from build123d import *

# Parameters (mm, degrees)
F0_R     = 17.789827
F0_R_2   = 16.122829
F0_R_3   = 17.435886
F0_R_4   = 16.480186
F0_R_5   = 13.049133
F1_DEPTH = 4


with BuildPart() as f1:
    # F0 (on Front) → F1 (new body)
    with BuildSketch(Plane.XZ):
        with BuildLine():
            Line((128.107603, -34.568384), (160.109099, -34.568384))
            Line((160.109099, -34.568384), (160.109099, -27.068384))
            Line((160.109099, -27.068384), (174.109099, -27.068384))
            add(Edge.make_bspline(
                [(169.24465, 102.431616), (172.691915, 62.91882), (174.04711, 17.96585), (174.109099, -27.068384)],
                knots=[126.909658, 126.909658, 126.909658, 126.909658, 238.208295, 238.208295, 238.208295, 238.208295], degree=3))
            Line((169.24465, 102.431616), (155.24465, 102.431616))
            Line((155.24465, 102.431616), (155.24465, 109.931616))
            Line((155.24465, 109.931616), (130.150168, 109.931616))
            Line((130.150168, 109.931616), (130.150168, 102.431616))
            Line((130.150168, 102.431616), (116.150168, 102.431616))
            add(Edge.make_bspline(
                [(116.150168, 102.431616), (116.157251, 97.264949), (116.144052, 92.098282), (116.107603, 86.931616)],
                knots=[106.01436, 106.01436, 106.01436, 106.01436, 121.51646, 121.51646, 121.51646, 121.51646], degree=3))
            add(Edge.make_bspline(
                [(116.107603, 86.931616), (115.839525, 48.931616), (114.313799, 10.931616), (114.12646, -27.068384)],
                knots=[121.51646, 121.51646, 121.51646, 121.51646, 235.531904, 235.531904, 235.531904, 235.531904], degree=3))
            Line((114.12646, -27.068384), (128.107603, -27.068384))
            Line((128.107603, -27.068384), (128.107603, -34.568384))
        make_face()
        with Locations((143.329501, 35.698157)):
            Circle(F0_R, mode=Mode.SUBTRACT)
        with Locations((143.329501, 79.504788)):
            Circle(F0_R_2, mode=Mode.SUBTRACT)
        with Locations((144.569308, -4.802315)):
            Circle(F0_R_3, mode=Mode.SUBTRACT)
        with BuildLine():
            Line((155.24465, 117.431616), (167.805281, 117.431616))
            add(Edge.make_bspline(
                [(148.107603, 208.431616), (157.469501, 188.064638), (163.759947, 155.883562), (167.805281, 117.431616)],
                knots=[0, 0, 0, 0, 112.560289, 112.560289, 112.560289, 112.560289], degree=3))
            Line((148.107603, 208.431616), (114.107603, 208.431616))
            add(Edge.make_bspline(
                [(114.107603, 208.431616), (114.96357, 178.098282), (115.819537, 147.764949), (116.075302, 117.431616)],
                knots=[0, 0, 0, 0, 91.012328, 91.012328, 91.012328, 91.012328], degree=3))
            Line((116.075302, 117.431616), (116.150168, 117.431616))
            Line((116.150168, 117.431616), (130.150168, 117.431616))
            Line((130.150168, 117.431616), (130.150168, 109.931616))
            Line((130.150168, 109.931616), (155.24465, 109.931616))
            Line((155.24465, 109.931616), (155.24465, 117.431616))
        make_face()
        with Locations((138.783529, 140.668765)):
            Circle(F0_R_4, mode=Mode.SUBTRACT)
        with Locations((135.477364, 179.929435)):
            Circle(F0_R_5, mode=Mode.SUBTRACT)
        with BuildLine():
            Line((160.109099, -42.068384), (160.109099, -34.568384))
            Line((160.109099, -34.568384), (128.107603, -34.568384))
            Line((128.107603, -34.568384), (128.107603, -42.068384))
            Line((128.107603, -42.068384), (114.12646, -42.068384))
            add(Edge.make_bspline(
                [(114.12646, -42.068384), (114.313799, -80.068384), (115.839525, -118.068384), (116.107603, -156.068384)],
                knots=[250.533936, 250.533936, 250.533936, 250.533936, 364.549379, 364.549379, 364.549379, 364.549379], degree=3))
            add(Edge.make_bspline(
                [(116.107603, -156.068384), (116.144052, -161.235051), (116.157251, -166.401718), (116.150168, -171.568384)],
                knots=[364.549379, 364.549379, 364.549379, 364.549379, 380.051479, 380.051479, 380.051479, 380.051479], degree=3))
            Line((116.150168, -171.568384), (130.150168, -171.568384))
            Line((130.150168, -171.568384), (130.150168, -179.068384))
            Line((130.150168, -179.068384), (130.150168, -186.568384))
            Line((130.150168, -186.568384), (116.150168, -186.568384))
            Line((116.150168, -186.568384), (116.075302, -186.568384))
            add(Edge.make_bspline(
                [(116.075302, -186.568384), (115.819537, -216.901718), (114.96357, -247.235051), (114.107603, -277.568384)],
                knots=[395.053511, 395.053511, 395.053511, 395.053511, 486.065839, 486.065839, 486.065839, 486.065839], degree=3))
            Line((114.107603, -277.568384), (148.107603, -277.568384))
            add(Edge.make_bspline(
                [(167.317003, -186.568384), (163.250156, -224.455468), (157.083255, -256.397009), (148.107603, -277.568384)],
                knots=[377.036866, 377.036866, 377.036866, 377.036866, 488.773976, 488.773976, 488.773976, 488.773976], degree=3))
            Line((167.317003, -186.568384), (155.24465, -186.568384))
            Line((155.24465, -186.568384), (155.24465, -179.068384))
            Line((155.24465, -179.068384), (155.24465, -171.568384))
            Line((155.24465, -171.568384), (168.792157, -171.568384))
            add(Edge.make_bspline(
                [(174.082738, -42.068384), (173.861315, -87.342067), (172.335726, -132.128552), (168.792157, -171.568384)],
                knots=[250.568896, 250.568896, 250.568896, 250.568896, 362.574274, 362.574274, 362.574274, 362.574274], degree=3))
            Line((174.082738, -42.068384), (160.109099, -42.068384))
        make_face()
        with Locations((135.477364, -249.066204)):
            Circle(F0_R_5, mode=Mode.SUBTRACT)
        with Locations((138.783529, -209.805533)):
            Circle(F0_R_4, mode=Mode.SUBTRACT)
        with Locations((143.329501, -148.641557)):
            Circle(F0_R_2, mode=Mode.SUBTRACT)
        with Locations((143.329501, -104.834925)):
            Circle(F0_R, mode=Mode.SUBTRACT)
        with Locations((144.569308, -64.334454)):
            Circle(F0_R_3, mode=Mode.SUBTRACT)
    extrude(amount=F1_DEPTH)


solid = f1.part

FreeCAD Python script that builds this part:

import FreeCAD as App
import Part
import Sketcher

V = App.Vector
Q = App.Units.Quantity

doc = App.newDocument("Part")
params = doc.addObject("Spreadsheet::Sheet", "Params")
for row, (alias, value) in enumerate([
    ("sketch1_width", "14 mm"),
    ("pad1_length", "4 mm"),
], start=1):
    params.set(f"A{row}", alias)
    params.set(f"B{row}", "=" + value)
    params.setAlias(f"B{row}", alias)

body = doc.addObject("PartDesign::Body", "Body")

# Sketch on XZ plane
sketch1 = doc.addObject("Sketcher::SketchObject", "Sketch")
body.addObject(sketch1)
sketch1.AttachmentSupport = (doc.XZ_Plane, [""])
sketch1.MapMode = "FlatFace"
sketch1.addGeometry(Part.LineSegment(V(128.107603, -27.068384, 0), V(128.107603, -42.068384, 0)), False)
sketch1.addGeometry(Part.LineSegment(V(128.107603, -42.068384, 0), V(114.12646, -42.068384, 0)), False)
sketch1.addGeometry(Part.BSplineCurve([V(114.12646, -42.068384, 0), V(114.313799, -80.068384, 0), V(115.839525, -118.068384, 0), V(116.107603, -156.068384, 0)], [4, 4], [250.533936, 364.549379], False, 3, [1, 1, 1, 1], False), False)
sketch1.addGeometry(Part.BSplineCurve([V(116.107603, -156.068384, 0), V(116.144052, -161.235051, 0), V(116.157251, -166.401718, 0), V(116.150168, -171.568384, 0)], [4, 4], [364.549379, 380.051479], False, 3, [1, 1, 1, 1], False), False)
sketch1.addGeometry(Part.LineSegment(V(116.150168, -171.568384, 0), V(130.150168, -171.568384, 0)), False)
sketch1.addGeometry(Part.LineSegment(V(130.150168, -171.568384, 0), V(130.150168, -186.568384, 0)), False)
sketch1.addGeometry(Part.LineSegment(V(130.150168, -186.568384, 0), V(116.075302, -186.568384, 0)), False)
sketch1.addGeometry(Part.BSplineCurve([V(116.075302, -186.568384, 0), V(115.819537, -216.901718, 0), V(114.96357, -247.235051, 0), V(114.107603, -277.568384, 0)], [4, 4], [395.053511, 486.065839], False, 3, [1, 1, 1, 1], False), False)
sketch1.addGeometry(Part.LineSegment(V(114.107603, -277.568384, 0), V(148.107603, -277.568384, 0)), False)
sketch1.addGeometry(Part.BSplineCurve([V(167.317003, -186.568384, 0), V(163.250156, -224.455468, 0), V(157.083255, -256.397009, 0), V(148.107603, -277.568384, 0)], [4, 4], [377.036866, 488.773976], False, 3, [1, 1, 1, 1], False), False)
sketch1.addGeometry(Part.LineSegment(V(167.317003, -186.568384, 0), V(155.24465, -186.568384, 0)), False)
sketch1.addGeometry(Part.LineSegment(V(155.24465, -186.568384, 0), V(155.24465, -171.568384, 0)), False)
sketch1.addGeometry(Part.LineSegment(V(155.24465, -171.568384, 0), V(168.792157, -171.568384, 0)), False)
sketch1.addGeometry(Part.BSplineCurve([V(174.082738, -42.068384, 0), V(173.861315, -87.342067, 0), V(172.335726, -132.128552, 0), V(168.792157, -171.568384, 0)], [4, 4], [250.568896, 362.574274], False, 3, [1, 1, 1, 1], False), False)
sketch1.addGeometry(Part.LineSegment(V(174.082738, -42.068384, 0), V(160.109099, -42.068384, 0)), False)
sketch1.addGeometry(Part.LineSegment(V(160.109099, -42.068384, 0), V(160.109099, -27.068384, 0)), False)
sketch1.addGeometry(Part.LineSegment(V(160.109099, -27.068384, 0), V(174.109099, -27.068384, 0)), False)
sketch1.addGeometry(Part.BSplineCurve([V(169.24465, 102.431616, 0), V(172.691915, 62.91882, 0), V(174.04711, 17.96585, 0), V(174.109099, -27.068384, 0)], [4, 4], [126.909658, 238.208295], False, 3, [1, 1, 1, 1], False), False)
sketch1.addGeometry(Part.LineSegment(V(169.24465, 102.431616, 0), V(155.24465, 102.431616, 0)), False)
sketch1.addGeometry(Part.LineSegment(V(155.24465, 102.431616, 0), V(155.24465, 117.431616, 0)), False)
sketch1.addGeometry(Part.LineSegment(V(155.24465, 117.431616, 0), V(167.805281, 117.431616, 0)), False)
sketch1.addGeometry(Part.BSplineCurve([V(148.107603, 208.431616, 0), V(157.469501, 188.064638, 0), V(163.759947, 155.883562, 0), V(167.805281, 117.431616, 0)], [4, 4], [0, 112.560289], False, 3, [1, 1, 1, 1], False), False)
sketch1.addGeometry(Part.LineSegment(V(148.107603, 208.431616, 0), V(114.107603, 208.431616, 0)), False)
sketch1.addGeometry(Part.BSplineCurve([V(114.107603, 208.431616, 0), V(114.96357, 178.098282, 0), V(115.819537, 147.764949, 0), V(116.075302, 117.431616, 0)], [4, 4], [0, 91.012328], False, 3, [1, 1, 1, 1], False), False)
sketch1.addGeometry(Part.LineSegment(V(116.075302, 117.431616, 0), V(130.150168, 117.431616, 0)), False)
sketch1.addGeometry(Part.LineSegment(V(130.150168, 117.431616, 0), V(130.150168, 102.431616, 0)), False)
sketch1.addGeometry(Part.LineSegment(V(130.150168, 102.431616, 0), V(116.150168, 102.431616, 0)), False)
sketch1.addGeometry(Part.BSplineCurve([V(116.150168, 102.431616, 0), V(116.157251, 97.264949, 0), V(116.144052, 92.098282, 0), V(116.107603, 86.931616, 0)], [4, 4], [106.01436, 121.51646], False, 3, [1, 1, 1, 1], False), False)
sketch1.addGeometry(Part.BSplineCurve([V(116.107603, 86.931616, 0), V(115.839525, 48.931616, 0), V(114.313799, 10.931616, 0), V(114.12646, -27.068384, 0)], [4, 4], [121.51646, 235.531904], False, 3, [1, 1, 1, 1], False), False)
sketch1.addGeometry(Part.LineSegment(V(114.12646, -27.068384, 0), V(128.107603, -27.068384, 0)), False)
sketch1.addGeometry(Part.Circle(V(135.477364, -249.066204, 0), V(0, 0, 1), 13.049133), False)
sketch1.addGeometry(Part.Circle(V(138.783529, -209.805533, 0), V(0, 0, 1), 16.480186), False)
sketch1.addGeometry(Part.Circle(V(143.329501, -148.641557, 0), V(0, 0, 1), 16.122829), False)
sketch1.addGeometry(Part.Circle(V(143.329501, -104.834925, 0), V(0, 0, 1), 17.789827), False)
sketch1.addGeometry(Part.Circle(V(144.569308, -64.334454, 0), V(0, 0, 1), 17.435886), False)
sketch1.addGeometry(Part.Circle(V(135.477364, 179.929435, 0), V(0, 0, 1), 13.049133), False)
sketch1.addGeometry(Part.Circle(V(138.783529, 140.668765, 0), V(0, 0, 1), 16.480186), False)
sketch1.addGeometry(Part.Circle(V(144.569308, -4.802315, 0), V(0, 0, 1), 17.435886), False)
sketch1.addGeometry(Part.Circle(V(143.329501, 35.698157, 0), V(0, 0, 1), 17.789827), False)
sketch1.addGeometry(Part.Circle(V(143.329501, 79.504788, 0), V(0, 0, 1), 16.122829), False)
sketch1.addConstraint(Sketcher.Constraint("Block", 2))
sketch1.addConstraint(Sketcher.Constraint("Block", 3))
sketch1.addConstraint(Sketcher.Constraint("Block", 7))
sketch1.addConstraint(Sketcher.Constraint("Block", 9))
sketch1.addConstraint(Sketcher.Constraint("Block", 13))
sketch1.addConstraint(Sketcher.Constraint("Block", 17))
sketch1.addConstraint(Sketcher.Constraint("Block", 21))
sketch1.addConstraint(Sketcher.Constraint("Block", 23))
sketch1.addConstraint(Sketcher.Constraint("Block", 27))
sketch1.addConstraint(Sketcher.Constraint("Block", 28))
sketch1.addConstraint(Sketcher.Constraint("Coincident", 0, 2, 1, 1))
sketch1.addConstraint(Sketcher.Constraint("Coincident", 1, 2, 2, 1))
sketch1.addConstraint(Sketcher.Constraint("Coincident", 3, 2, 4, 1))
sketch1.addConstraint(Sketcher.Constraint("Coincident", 4, 2, 5, 1))
sketch1.addConstraint(Sketcher.Constraint("Coincident", 5, 2, 6, 1))
sketch1.addConstraint(Sketcher.Constraint("Coincident", 6, 2, 7, 1))
sketch1.addConstraint(Sketcher.Constraint("Coincident", 7, 2, 8, 1))
sketch1.addConstraint(Sketcher.Constraint("Coincident", 8, 2, 9, 2))
sketch1.addConstraint(Sketcher.Constraint("Coincident", 9, 1, 10, 1))
sketch1.addConstraint(Sketcher.Constraint("Coincident", 10, 2, 11, 1))
sketch1.addConstraint(Sketcher.Constraint("Coincident", 11, 2, 12, 1))
sketch1.addConstraint(Sketcher.Constraint("Coincident", 12, 2, 13, 2))
sketch1.addConstraint(Sketcher.Constraint("Coincident", 13, 1, 14, 1))
sketch1.addConstraint(Sketcher.Constraint("Coincident", 14, 2, 15, 1))
sketch1.addConstraint(Sketcher.Constraint("Coincident", 15, 2, 16, 1))
sketch1.addConstraint(Sketcher.Constraint("Coincident", 16, 2, 17, 2))
sketch1.addConstraint(Sketcher.Constraint("Coincident", 17, 1, 18, 1))
sketch1.addConstraint(Sketcher.Constraint("Coincident", 18, 2, 19, 1))
sketch1.addConstraint(Sketcher.Constraint("Coincident", 19, 2, 20, 1))
sketch1.addConstraint(Sketcher.Constraint("Coincident", 20, 2, 21, 2))
sketch1.addConstraint(Sketcher.Constraint("Coincident", 21, 1, 22, 1))
sketch1.addConstraint(Sketcher.Constraint("Coincident", 22, 2, 23, 1))
sketch1.addConstraint(Sketcher.Constraint("Coincident", 23, 2, 24, 1))
sketch1.addConstraint(Sketcher.Constraint("Coincident", 24, 2, 25, 1))
sketch1.addConstraint(Sketcher.Constraint("Coincident", 25, 2, 26, 1))
sketch1.addConstraint(Sketcher.Constraint("Coincident", 26, 2, 27, 1))
sketch1.addConstraint(Sketcher.Constraint("Coincident", 28, 2, 29, 1))
sketch1.addConstraint(Sketcher.Constraint("Coincident", 29, 2, 0, 1))
sketch1.addConstraint(Sketcher.Constraint("Vertical", 0))
sketch1.addConstraint(Sketcher.Constraint("Horizontal", 1))
sketch1.addConstraint(Sketcher.Constraint("Horizontal", 4))
sketch1.addConstraint(Sketcher.Constraint("Vertical", 5))
sketch1.addConstraint(Sketcher.Constraint("Horizontal", 6))
sketch1.addConstraint(Sketcher.Constraint("Horizontal", 10))
sketch1.addConstraint(Sketcher.Constraint("Vertical", 11))
sketch1.addConstraint(Sketcher.Constraint("Horizontal", 12))
sketch1.addConstraint(Sketcher.Constraint("Horizontal", 14))
sketch1.addConstraint(Sketcher.Constraint("Vertical", 15))
sketch1.addConstraint(Sketcher.Constraint("Horizontal", 16))
sketch1.addConstraint(Sketcher.Constraint("Horizontal", 18))
sketch1.addConstraint(Sketcher.Constraint("Vertical", 19))
sketch1.addConstraint(Sketcher.Constraint("Horizontal", 20))
sketch1.addConstraint(Sketcher.Constraint("Horizontal", 24))
sketch1.addConstraint(Sketcher.Constraint("Vertical", 25))
sketch1.addConstraint(Sketcher.Constraint("Horizontal", 26))
sketch1.addConstraint(Sketcher.Constraint("Horizontal", 29))
sketch1.addConstraint(Sketcher.Constraint("Equal", 30, 35))
sketch1.addConstraint(Sketcher.Constraint("Equal", 31, 36))
sketch1.addConstraint(Sketcher.Constraint("Equal", 34, 37))
sketch1.addConstraint(Sketcher.Constraint("Equal", 33, 38))
sketch1.addConstraint(Sketcher.Constraint("Equal", 32, 39))
sketch1.addConstraint(Sketcher.Constraint("Vertical", 32, 3, 33, 3))
sketch1.addConstraint(Sketcher.Constraint("Vertical", 30, 3, 35, 3))
sketch1.addConstraint(Sketcher.Constraint("Vertical", 31, 3, 36, 3))
sketch1.addConstraint(Sketcher.Constraint("Vertical", 34, 3, 37, 3))
sketch1.addConstraint(Sketcher.Constraint("Vertical", 33, 3, 38, 3))
sketch1.addConstraint(Sketcher.Constraint("Vertical", 38, 3, 39, 3))
sketch1.addConstraint(Sketcher.Constraint("Vertical", 11, 2, 18, 2))
sketch1.addConstraint(Sketcher.Constraint("Vertical", 5, 2, 24, 2))
sketch1.addConstraint(Sketcher.Constraint("Equal", 4, 16))
sketch1.addConstraint(Sketcher.Constraint("Equal", 16, 18))
sketch1.addConstraint(Sketcher.Constraint("DistanceX", 4, 1, 4, 2, Q("14 mm")))
sketch1.addConstraint(Sketcher.Constraint("Diameter", 30, Q("26.098266 mm")))
sketch1.addConstraint(Sketcher.Constraint("Diameter", 31, Q("32.960372 mm")))
sketch1.addConstraint(Sketcher.Constraint("Diameter", 32, Q("32.245658 mm")))
sketch1.addConstraint(Sketcher.Constraint("Diameter", 33, Q("35.579654 mm")))
sketch1.addConstraint(Sketcher.Constraint("Diameter", 34, Q("34.871772 mm")))
sketch1.addConstraint(Sketcher.Constraint("DistanceX", -1, 1, 32, 3, Q("143.329501 mm")))
sketch1.addConstraint(Sketcher.Constraint("DistanceX", 1, 2, 1, 1, Q("13.981143 mm")))
sketch1.addConstraint(Sketcher.Constraint("DistanceX", -1, 1, 31, 3, Q("138.783529 mm")))
sketch1.addConstraint(Sketcher.Constraint("DistanceX", -1, 1, 34, 3, Q("144.569308 mm")))
sketch1.addConstraint(Sketcher.Constraint("DistanceY", -1, 1, 39, 3, Q("79.504788 mm")))
sketch1.addConstraint(Sketcher.Constraint("DistanceY", 30, 3, 31, 3, Q("39.260671 mm")))
sketch1.addConstraint(Sketcher.Constraint("DistanceY", 31, 3, 33, 3, Q("104.970608 mm")))
sketch1.addConstraint(Sketcher.Constraint("DistanceY", 33, 3, 34, 3, Q("40.500471 mm")))
sketch1.addConstraint(Sketcher.Constraint("DistanceY", 34, 3, 35, 3, Q("244.263889 mm")))
sketch1.addConstraint(Sketcher.Constraint("DistanceY", 36, 3, 35, 3, Q("39.26067 mm")))
sketch1.addConstraint(Sketcher.Constraint("DistanceY", 34, 3, 37, 3, Q("59.532139 mm")))
sketch1.addConstraint(Sketcher.Constraint("DistanceY", 34, 3, 38, 3, Q("100.032611 mm")))
sketch1.addConstraint(Sketcher.Constraint("DistanceY", 38, 3, 39, 3, Q("43.806631 mm")))
sketch1.addConstraint(Sketcher.Constraint("DistanceX", 30, 3, 8, 2, Q("12.630239 mm")))
sketch1.addConstraint(Sketcher.Constraint("DistanceY", 32, 3, -1, 1, Q("148.641557 mm")))
sketch1.setExpression("Constraints[71]", "Params.sketch1_width")
pad1 = doc.addObject("PartDesign::Pad", "Pad")
body.addObject(pad1)
pad1.Profile = sketch1
pad1.setExpression("Length", "Params.pad1_length")

doc.recompute()
